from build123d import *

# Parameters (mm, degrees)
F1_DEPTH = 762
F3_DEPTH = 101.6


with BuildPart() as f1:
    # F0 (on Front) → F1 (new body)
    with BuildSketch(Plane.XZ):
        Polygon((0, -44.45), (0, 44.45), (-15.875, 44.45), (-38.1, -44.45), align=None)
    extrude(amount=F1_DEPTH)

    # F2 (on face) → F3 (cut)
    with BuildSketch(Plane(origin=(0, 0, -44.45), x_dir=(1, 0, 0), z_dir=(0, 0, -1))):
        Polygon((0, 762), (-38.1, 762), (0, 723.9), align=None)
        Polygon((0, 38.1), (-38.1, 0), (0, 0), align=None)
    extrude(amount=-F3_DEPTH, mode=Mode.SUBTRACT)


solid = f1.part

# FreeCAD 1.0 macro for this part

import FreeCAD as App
import Part
import Sketcher
Q = App.Units.Quantity


def add_polygon(sketch, points):
    """Adds a closed chain of lines whose ends are joined by coincident constraints."""
    first, n = sketch.GeometryCount, len(points)
    for a, b in zip(points, points[1:] + points[:1]):
        sketch.addGeometry(Part.LineSegment(App.Vector(*a, 0), App.Vector(*b, 0)), False)
    for i in range(n):
        sketch.addConstraint(Sketcher.Constraint("Coincident", first + i, 2, first + (i + 1) % n, 1))

doc = App.newDocument("Part")
params = doc.addObject("Spreadsheet::Sheet", "Params")
for row, (alias, value) in enumerate([
    ("sketch1_width", "1.5 in"),
    ("sketch1_height", "3.5 in"),
    ("sketch1_width2", "0.625 in"),
    ("pad1_length", "30 in"),
    ("sketch2_width", "1.5 in"),
    ("pocket1_length", "4 in"),
], start=1):
    params.set(f"A{row}", alias)
    params.set(f"B{row}", "=" + value)
    params.setAlias(f"B{row}", alias)

body = doc.addObject("PartDesign::Body", "Body")

sketch1 = body.newObject("Sketcher::SketchObject", "Sketch")
sketch1.AttachmentSupport = (doc.getObject("XZ_Plane"), [""])
sketch1.MapMode = "FlatFace"
add_polygon(sketch1, [(0, -44), (0, 44), (-16, 44), (-38, -44)])
sketch1.addConstraint(Sketcher.Constraint("Vertical", 0))
sketch1.addConstraint(Sketcher.Constraint("Horizontal", 1))
sketch1.addConstraint(Sketcher.Constraint("Horizontal", 3))
sketch1.addConstraint(Sketcher.Constraint("Symmetric", 0, 2, 3, 2, -1, 1))
sketch1.addConstraint(Sketcher.Constraint("DistanceX", 3, 1, 3, 2, Q("1.5 in")))
sketch1.addConstraint(Sketcher.Constraint("DistanceY", 0, 1, 0, 2, Q("3.5 in")))
sketch1.addConstraint(Sketcher.Constraint("DistanceX", 1, 2, 1, 1, Q("0.625 in")))
sketch1.setExpression("Constraints[8]", "Params.sketch1_width")
sketch1.setExpression("Constraints[9]", "Params.sketch1_height")
sketch1.setExpression("Constraints[10]", "Params.sketch1_width2")
pad1 = body.newObject("PartDesign::Pad", "Pad")
pad1.Profile = sketch1
pad1.setExpression("Length", "Params.pad1_length")

sketch2 = body.newObject("Sketcher::SketchObject", "Sketch001")
sketch2.AttachmentSupport = (doc.getObject("XY_Plane"), [""])
sketch2.MapMode = "FlatFace"
sketch2.AttachmentOffset = App.Placement(App.Vector(0, 0, -1.75 * 25.4), App.Rotation())
add_polygon(sketch2, [(0, -762), (-38, -762), (0, -724)])
add_polygon(sketch2, [(0, -38), (-38, 0), (0, 0)])
sketch2.addConstraint(Sketcher.Constraint("Horizontal", 0))
sketch2.addConstraint(Sketcher.Constraint("Vertical", 2))
sketch2.addConstraint(Sketcher.Constraint("Horizontal", 4))
sketch2.addConstraint(Sketcher.Constraint("Vertical", 5))
sketch2.addConstraint(Sketcher.Constraint("Coincident", 4, 2, -1, 1))
sketch2.addConstraint(Sketcher.Constraint("PointOnObject", 1, 2, -2))
sketch2.addConstraint(Sketcher.Constraint("Perpendicular", 1, 3))
sketch2.addConstraint(Sketcher.Constraint("Vertical", 0, 2, 3, 2))
sketch2.addConstraint(Sketcher.Constraint("Equal", 4, 2))
sketch2.addConstraint(Sketcher.Constraint("DistanceX", 0, 2, 0, 1, Q("1.5 in")))
sketch2.addConstraint(Sketcher.Constraint("DistanceY", 0, 2, -1, 1, Q("30 in")))
sketch2.setExpression("Constraints[15]", "Params.sketch2_width")
pocket1 = body.newObject("PartDesign::Pocket", "Pocket")
pocket1.Profile = sketch2
pocket1.setExpression("Length", "Params.pocket1_length")
pocket1.Reversed = True

doc.recompute()
